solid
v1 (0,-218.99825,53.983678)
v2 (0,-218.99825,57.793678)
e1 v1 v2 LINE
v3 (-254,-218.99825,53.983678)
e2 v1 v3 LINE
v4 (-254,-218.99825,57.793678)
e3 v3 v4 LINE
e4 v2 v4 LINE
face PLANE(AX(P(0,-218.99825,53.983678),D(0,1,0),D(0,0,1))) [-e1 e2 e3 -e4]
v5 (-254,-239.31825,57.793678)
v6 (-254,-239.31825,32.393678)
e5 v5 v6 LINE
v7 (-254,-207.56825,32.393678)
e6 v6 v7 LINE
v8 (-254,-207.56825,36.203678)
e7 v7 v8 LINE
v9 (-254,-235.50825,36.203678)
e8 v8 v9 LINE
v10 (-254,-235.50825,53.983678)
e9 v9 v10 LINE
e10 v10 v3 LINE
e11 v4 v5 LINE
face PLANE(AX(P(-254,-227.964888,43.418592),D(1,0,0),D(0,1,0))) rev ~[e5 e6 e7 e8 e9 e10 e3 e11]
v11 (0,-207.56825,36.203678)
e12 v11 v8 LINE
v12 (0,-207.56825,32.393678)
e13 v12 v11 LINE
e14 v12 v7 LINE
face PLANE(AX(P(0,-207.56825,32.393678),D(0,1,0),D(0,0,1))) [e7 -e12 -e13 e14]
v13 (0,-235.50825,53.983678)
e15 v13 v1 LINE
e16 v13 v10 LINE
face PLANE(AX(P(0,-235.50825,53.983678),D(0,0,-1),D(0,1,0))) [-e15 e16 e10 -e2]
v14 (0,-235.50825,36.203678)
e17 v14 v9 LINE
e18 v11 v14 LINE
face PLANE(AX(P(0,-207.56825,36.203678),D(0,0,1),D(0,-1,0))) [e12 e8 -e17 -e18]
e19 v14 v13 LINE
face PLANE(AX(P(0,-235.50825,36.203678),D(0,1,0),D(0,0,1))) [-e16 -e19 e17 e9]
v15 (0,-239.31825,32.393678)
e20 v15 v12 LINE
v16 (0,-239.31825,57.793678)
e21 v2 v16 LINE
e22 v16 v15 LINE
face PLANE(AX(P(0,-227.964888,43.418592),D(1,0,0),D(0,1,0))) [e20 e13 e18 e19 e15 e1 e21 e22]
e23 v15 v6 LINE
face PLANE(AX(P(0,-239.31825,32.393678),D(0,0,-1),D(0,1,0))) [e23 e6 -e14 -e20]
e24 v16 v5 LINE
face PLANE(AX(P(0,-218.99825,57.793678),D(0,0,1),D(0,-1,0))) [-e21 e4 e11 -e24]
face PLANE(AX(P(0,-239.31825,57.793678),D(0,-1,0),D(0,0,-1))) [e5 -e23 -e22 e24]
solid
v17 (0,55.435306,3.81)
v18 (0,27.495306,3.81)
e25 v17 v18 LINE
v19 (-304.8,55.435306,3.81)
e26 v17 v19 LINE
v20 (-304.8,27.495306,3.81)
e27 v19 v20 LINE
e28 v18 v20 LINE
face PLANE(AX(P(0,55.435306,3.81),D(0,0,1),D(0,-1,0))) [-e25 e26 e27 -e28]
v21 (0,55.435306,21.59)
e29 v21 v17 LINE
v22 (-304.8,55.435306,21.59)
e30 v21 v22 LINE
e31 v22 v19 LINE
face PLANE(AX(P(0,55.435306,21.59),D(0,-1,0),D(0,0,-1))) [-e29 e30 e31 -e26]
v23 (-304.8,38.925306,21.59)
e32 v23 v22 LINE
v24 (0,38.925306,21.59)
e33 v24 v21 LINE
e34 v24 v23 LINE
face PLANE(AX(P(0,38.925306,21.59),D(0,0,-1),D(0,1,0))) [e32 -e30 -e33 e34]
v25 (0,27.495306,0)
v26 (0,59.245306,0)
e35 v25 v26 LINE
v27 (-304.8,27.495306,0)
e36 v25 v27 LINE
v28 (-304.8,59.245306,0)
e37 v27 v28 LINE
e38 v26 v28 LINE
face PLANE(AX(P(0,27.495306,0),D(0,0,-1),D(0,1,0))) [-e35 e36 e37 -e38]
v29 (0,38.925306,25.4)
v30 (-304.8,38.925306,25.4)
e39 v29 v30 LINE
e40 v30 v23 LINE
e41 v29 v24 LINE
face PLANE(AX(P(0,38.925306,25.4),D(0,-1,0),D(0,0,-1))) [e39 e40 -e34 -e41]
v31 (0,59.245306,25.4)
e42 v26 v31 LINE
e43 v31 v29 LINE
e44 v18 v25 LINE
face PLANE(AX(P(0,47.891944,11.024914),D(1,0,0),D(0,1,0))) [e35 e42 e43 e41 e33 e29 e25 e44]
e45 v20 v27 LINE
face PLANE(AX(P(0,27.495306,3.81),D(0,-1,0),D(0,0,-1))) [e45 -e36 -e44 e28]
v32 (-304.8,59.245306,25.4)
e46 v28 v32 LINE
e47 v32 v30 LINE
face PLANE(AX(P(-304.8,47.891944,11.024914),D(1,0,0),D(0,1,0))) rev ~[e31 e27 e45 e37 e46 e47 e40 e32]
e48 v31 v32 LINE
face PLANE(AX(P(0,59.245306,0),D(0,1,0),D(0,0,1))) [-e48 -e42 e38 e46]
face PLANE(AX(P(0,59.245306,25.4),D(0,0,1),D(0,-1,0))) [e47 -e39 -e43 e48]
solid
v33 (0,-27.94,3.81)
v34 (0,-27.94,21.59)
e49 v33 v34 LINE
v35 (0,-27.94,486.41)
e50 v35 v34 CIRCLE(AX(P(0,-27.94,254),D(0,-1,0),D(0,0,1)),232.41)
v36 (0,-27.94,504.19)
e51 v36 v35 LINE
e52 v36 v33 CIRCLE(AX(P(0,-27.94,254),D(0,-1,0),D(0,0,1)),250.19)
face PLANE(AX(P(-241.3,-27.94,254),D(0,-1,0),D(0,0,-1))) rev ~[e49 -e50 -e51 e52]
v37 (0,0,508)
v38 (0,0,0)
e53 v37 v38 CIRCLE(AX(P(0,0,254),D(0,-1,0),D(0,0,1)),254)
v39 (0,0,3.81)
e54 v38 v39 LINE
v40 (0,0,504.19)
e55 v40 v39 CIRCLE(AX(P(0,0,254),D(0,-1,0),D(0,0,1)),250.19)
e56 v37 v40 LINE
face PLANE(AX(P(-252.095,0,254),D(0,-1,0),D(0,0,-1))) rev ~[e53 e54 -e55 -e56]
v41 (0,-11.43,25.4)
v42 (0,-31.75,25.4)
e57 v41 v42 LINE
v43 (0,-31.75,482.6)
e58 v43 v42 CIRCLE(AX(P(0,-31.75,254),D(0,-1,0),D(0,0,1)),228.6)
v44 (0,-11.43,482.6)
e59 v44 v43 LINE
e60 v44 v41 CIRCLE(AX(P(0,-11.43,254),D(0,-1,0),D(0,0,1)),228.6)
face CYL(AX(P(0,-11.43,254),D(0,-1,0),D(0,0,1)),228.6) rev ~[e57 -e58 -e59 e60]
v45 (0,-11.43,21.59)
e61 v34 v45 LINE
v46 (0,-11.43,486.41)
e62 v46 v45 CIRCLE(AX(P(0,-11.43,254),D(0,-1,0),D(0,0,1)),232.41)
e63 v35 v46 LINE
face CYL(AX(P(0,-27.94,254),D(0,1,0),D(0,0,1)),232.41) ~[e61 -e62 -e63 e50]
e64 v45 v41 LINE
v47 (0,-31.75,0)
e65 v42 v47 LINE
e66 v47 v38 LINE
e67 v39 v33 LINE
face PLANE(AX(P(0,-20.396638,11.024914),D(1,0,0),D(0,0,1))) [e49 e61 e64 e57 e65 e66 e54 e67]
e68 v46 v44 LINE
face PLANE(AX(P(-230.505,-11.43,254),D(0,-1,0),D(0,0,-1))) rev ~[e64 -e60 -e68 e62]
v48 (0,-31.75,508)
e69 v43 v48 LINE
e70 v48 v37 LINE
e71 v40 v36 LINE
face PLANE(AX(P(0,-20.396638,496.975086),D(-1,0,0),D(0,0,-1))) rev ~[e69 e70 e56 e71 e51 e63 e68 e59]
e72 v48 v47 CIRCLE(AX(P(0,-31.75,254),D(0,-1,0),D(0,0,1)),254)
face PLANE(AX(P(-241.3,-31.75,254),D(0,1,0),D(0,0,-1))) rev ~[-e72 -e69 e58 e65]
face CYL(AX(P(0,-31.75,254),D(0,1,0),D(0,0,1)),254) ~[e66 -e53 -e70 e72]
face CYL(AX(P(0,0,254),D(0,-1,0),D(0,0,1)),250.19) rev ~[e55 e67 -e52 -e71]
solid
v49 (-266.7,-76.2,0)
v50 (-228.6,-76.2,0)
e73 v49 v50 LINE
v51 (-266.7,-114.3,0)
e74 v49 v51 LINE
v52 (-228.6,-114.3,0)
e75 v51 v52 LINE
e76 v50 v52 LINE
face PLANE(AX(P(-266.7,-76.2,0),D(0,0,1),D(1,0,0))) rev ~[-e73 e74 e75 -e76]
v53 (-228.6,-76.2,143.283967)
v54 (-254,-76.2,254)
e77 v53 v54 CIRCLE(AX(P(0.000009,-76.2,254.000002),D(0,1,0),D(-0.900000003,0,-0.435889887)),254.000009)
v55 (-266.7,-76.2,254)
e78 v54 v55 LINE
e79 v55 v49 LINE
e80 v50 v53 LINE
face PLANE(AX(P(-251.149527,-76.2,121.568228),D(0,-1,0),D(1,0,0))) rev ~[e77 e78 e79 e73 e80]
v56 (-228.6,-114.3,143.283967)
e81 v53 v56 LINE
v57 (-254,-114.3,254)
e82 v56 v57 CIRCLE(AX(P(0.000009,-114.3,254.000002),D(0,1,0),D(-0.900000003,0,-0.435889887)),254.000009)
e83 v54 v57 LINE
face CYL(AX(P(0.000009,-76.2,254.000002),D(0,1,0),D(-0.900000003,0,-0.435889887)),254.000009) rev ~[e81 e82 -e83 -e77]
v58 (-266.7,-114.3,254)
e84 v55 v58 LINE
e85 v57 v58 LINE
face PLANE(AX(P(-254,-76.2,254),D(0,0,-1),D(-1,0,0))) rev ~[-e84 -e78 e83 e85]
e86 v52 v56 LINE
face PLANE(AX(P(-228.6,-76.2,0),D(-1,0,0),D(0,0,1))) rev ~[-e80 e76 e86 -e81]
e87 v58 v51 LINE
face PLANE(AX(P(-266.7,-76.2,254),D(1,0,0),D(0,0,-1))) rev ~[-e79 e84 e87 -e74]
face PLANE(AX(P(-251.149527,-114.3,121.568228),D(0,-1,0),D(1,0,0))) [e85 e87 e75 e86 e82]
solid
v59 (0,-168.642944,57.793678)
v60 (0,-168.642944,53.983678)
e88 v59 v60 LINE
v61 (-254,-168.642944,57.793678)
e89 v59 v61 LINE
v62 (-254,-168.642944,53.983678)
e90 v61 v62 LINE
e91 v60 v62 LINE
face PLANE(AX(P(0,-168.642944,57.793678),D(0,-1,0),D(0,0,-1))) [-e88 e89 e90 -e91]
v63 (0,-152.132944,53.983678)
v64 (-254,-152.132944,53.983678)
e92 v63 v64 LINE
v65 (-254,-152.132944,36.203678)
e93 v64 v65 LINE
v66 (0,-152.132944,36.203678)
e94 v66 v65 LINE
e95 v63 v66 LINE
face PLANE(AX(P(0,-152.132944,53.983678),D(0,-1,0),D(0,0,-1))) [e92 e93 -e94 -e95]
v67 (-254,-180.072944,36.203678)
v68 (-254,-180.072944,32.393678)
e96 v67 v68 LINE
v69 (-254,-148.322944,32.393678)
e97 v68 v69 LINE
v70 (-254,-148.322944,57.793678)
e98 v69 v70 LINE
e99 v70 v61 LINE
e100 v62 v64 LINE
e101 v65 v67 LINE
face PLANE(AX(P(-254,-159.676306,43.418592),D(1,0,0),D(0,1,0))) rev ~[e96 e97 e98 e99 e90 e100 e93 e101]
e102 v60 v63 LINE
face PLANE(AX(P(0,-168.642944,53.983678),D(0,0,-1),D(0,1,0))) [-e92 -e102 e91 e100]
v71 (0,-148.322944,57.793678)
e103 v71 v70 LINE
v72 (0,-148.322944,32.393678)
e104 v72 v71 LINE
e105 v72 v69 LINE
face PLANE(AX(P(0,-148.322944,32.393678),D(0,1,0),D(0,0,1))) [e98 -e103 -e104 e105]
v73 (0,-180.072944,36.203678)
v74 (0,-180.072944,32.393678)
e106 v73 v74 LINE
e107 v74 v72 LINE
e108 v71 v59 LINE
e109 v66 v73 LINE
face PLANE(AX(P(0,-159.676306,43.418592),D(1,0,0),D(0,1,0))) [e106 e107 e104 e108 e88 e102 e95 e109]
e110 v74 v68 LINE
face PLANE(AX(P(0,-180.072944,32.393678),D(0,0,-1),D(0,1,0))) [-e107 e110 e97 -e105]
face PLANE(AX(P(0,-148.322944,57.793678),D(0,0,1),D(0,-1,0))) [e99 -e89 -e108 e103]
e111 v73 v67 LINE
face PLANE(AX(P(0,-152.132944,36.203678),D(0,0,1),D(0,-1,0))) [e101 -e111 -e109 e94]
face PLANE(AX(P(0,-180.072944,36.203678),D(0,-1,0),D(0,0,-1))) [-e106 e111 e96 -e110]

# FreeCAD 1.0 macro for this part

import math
import FreeCAD as App
import Part
import Sketcher

V = App.Vector
Q = App.Units.Quantity


def add_polygon(sketch, points):
    """Adds a closed chain of lines whose ends are joined by coincident constraints."""
    first, n = sketch.GeometryCount, len(points)
    for a, b in zip(points, points[1:] + points[:1]):
        sketch.addGeometry(Part.LineSegment(App.Vector(*a, 0), App.Vector(*b, 0)), False)
    for i in range(n):
        sketch.addConstraint(Sketcher.Constraint("Coincident", first + i, 2, first + (i + 1) % n, 1))

doc = App.newDocument("Part")
body = doc.addObject("PartDesign::Body", "Body")

# Sketch on YZ plane
sketch1 = doc.addObject("Sketcher::SketchObject", "Sketch")
body.addObject(sketch1)
sketch1.AttachmentSupport = (doc.YZ_Plane, [""])
sketch1.MapMode = "FlatFace"
add_polygon(sketch1, [(-27.94, 3.81), (-27.94, 21.59), (-11.43, 21.59), (-11.43, 25.4), (-31.75, 25.4), (-31.75, 0), (0, 0), (0, 3.81)])  # lines 0-7
sketch1.addConstraint(Sketcher.Constraint("Vertical", 0))
sketch1.addConstraint(Sketcher.Constraint("Horizontal", 1))
sketch1.addConstraint(Sketcher.Constraint("Vertical", 2))
sketch1.addConstraint(Sketcher.Constraint("Horizontal", 3))
sketch1.addConstraint(Sketcher.Constraint("Vertical", 4))
sketch1.addConstraint(Sketcher.Constraint("Horizontal", 5))
sketch1.addConstraint(Sketcher.Constraint("Vertical", 6))
sketch1.addConstraint(Sketcher.Constraint("Horizontal", 7))
sketch1.addConstraint(Sketcher.Constraint("Coincident", 5, 2, -1, 1))
sketch1.addConstraint(Sketcher.Constraint("Equal", 2, 6))
sketch1.addConstraint(Sketcher.Constraint("DistanceY", 4, 2, 4, 1, Q("1 in")))
sketch1.addConstraint(Sketcher.Constraint("DistanceX", 3, 2, 3, 1, Q("0.8 in")))
sketch1.addConstraint(Sketcher.Constraint("DistanceX", 7, 2, 7, 1, Q("1.1 in")))
sketch1.addConstraint(Sketcher.Constraint("DistanceY", 0, 1, 0, 2, Q("0.7 in")))
sketch1.addConstraint(Sketcher.Constraint("DistanceX", 1, 1, 1, 2, Q("0.65 in")))

# Sketch on XZ plane
sketch2 = doc.addObject("Sketcher::SketchObject", "Sketch001")
body.addObject(sketch2)
sketch2.AttachmentSupport = (doc.XZ_Plane, [""])
sketch2.MapMode = "FlatFace"
sketch2.addGeometry(Part.ArcOfCircle(Part.Circle(V(0, 254, 0), V(0, 0, 1), 254), math.radians(90), math.radians(270)), False)
sketch2.addConstraint(Sketcher.Constraint("Coincident", 0, 2, -1, 1))
sketch2.addConstraint(Sketcher.Constraint("PointOnObject", 0, 3, -2))
sketch2.addConstraint(Sketcher.Constraint("PointOnObject", 0, 1, -2))
sketch2.addConstraint(Sketcher.Constraint("Radius", 0, Q("10 in")))
doc.recompute()

additivepipe = doc.addObject("PartDesign::AdditivePipe", "AdditivePipe")
body.addObject(additivepipe)
additivepipe.Profile = sketch1
additivepipe.Spine = (sketch2, ["Edge1"])
body2 = doc.addObject("PartDesign::Body", "Body001")
body2.AllowCompound = True

# Sketch on YZ plane
sketch3 = doc.addObject("Sketcher::SketchObject", "Sketch002")
body2.addObject(sketch3)
sketch3.AttachmentSupport = (doc.getObject("YZ_Plane001"), [""])
sketch3.MapMode = "FlatFace"
add_polygon(sketch3, [(-235.50825, 36.203678), (-235.50825, 53.983678), (-218.99825, 53.983678), (-218.99825, 57.793678), (-239.31825, 57.793678), (-239.31825, 32.393678), (-207.56825, 32.393678), (-207.56825, 36.203678)])  # lines 0-7
add_polygon(sketch3, [(-168.642944, 53.983678), (-152.132944, 53.983678), (-152.132944, 36.203678), (-180.072944, 36.203678), (-180.072944, 32.393678), (-148.322944, 32.393678), (-148.322944, 57.793678), (-168.642944, 57.793678)])  # lines 8-15
sketch3.addConstraint(Sketcher.Constraint("Vertical", 0))
sketch3.addConstraint(Sketcher.Constraint("Horizontal", 1))
sketch3.addConstraint(Sketcher.Constraint("Vertical", 2))
sketch3.addConstraint(Sketcher.Constraint("Horizontal", 3))
sketch3.addConstraint(Sketcher.Constraint("Vertical", 4))
sketch3.addConstraint(Sketcher.Constraint("Horizontal", 5))
sketch3.addConstraint(Sketcher.Constraint("Vertical", 6))
sketch3.addConstraint(Sketcher.Constraint("Horizontal", 7))
sketch3.addConstraint(Sketcher.Constraint("Horizontal", 8))
sketch3.addConstraint(Sketcher.Constraint("Vertical", 9))
sketch3.addConstraint(Sketcher.Constraint("Horizontal", 10))
sketch3.addConstraint(Sketcher.Constraint("Vertical", 11))
sketch3.addConstraint(Sketcher.Constraint("Horizontal", 12))
sketch3.addConstraint(Sketcher.Constraint("Vertical", 13))
sketch3.addConstraint(Sketcher.Constraint("Horizontal", 14))
sketch3.addConstraint(Sketcher.Constraint("Vertical", 15))
sketch3.addConstraint(Sketcher.Constraint("Horizontal", 1, 2, 8, 2))
sketch3.addConstraint(Sketcher.Constraint("Horizontal", 7, 2, 9, 2))
sketch3.addConstraint(Sketcher.Constraint("Horizontal", 5, 2, 11, 2))
sketch3.addConstraint(Sketcher.Constraint("Horizontal", 3, 2, 13, 2))
sketch3.addConstraint(Sketcher.Constraint("Equal", 1, 8))
sketch3.addConstraint(Sketcher.Constraint("Equal", 7, 10))
sketch3.addConstraint(Sketcher.Constraint("Equal", 5, 12))
sketch3.addConstraint(Sketcher.Constraint("Equal", 2, 6))
sketch3.addConstraint(Sketcher.Constraint("DistanceY", 4, 2, 4, 1, Q("1 in")))
sketch3.addConstraint(Sketcher.Constraint("DistanceX", 3, 2, 3, 1, Q("0.8 in")))
sketch3.addConstraint(Sketcher.Constraint("DistanceX", 7, 2, 7, 1, Q("1.1 in")))
sketch3.addConstraint(Sketcher.Constraint("DistanceY", 0, 1, 0, 2, Q("0.7 in")))
sketch3.addConstraint(Sketcher.Constraint("DistanceX", 1, 1, 1, 2, Q("0.65 in")))
sketch3.addConstraint(Sketcher.Constraint("DistanceX", 0, 2, -1, 1, 235.50825))
sketch3.addConstraint(Sketcher.Constraint("DistanceY", -1, 1, 0, 2, 53.983678))
sketch3.addConstraint(Sketcher.Constraint("DistanceX", 8, 2, -1, 1, 152.132944))
pad1 = doc.addObject("PartDesign::Pad", "Pad")
body2.addObject(pad1)
pad1.Profile = sketch3
pad1.Length = Q("10 in")
pad1.Reversed = True
body3 = doc.addObject("PartDesign::Body", "Body002")

# Sketch on XZ plane
sketch4 = doc.addObject("Sketcher::SketchObject", "Sketch003")
body3.addObject(sketch4)
sketch4.AttachmentSupport = (doc.getObject("XZ_Plane002"), [""])
sketch4.MapMode = "FlatFace"
sketch4.AttachmentOffset = App.Placement(V(0, 0, 3 * 25.4), App.Rotation())
sketch4.addGeometry(Part.LineSegment(V(-266.7, 254, 0), V(-266.7, 0, 0)), False)
sketch4.addGeometry(Part.LineSegment(V(-266.7, 0, 0), V(-228.6, 0, 0)), False)
sketch4.addGeometry(Part.LineSegment(V(-228.6, 0, 0), V(-228.6, 143.283967, 0)), False)
sketch4.addGeometry(Part.ArcOfCircle(Part.Circle(V(0.000009, 254.000002, 0), V(0, 0, 1), 254.000009), math.radians(-180), math.radians(-154.158068)), False)
sketch4.addGeometry(Part.LineSegment(V(-254, 254, 0), V(-266.7, 254, 0)), False)
sketch4.addConstraint(Sketcher.Constraint("Coincident", 0, 2, 1, 1))
sketch4.addConstraint(Sketcher.Constraint("Coincident", 1, 2, 2, 1))
sketch4.addConstraint(Sketcher.Constraint("Coincident", 2, 2, 3, 2))
sketch4.addConstraint(Sketcher.Constraint("Coincident", 3, 1, 4, 1))
sketch4.addConstraint(Sketcher.Constraint("Coincident", 4, 2, 0, 1))
sketch4.addConstraint(Sketcher.Constraint("Vertical", 0))
sketch4.addConstraint(Sketcher.Constraint("Horizontal", 1))
sketch4.addConstraint(Sketcher.Constraint("Vertical", 2))
sketch4.addConstraint(Sketcher.Constraint("Horizontal", 4))
sketch4.addConstraint(Sketcher.Constraint("PointOnObject", 0, 2, -1))
sketch4.addConstraint(Sketcher.Constraint("DistanceY", 0, 2, 0, 1, Q("10 in")))
sketch4.addConstraint(Sketcher.Constraint("DistanceX", 1, 1, 1, 2, Q("1.5 in")))
sketch4.addConstraint(Sketcher.Constraint("DistanceX", 4, 2, 4, 1, Q("0.5 in")))
sketch4.addConstraint(Sketcher.Constraint("DistanceY", -1, 1, 3, 3, Q("10.0000001 in")))
sketch4.addConstraint(Sketcher.Constraint("DistanceX", 1, 2, -1, 1, Q("9 in")))
sketch4.addConstraint(Sketcher.Constraint("Radius", 3, 254.000009))
pad2 = doc.addObject("PartDesign::Pad", "Pad001")
body3.addObject(pad2)
pad2.Profile = sketch4
pad2.Length = Q("1.5 in")
body4 = doc.addObject("PartDesign::Body", "Body003")

# Sketch on YZ plane
sketch5 = doc.addObject("Sketcher::SketchObject", "Sketch004")
body4.addObject(sketch5)
sketch5.AttachmentSupport = (doc.getObject("YZ_Plane003"), [""])
sketch5.MapMode = "FlatFace"
add_polygon(sketch5, [(38.925306, 21.59), (55.435306, 21.59), (55.435306, 3.81), (27.495306, 3.81), (27.495306, 0), (59.245306, 0), (59.245306, 25.4), (38.925306, 25.4)])  # lines 0-7
sketch5.addConstraint(Sketcher.Constraint("Horizontal", 0))
sketch5.addConstraint(Sketcher.Constraint("Vertical", 1))
sketch5.addConstraint(Sketcher.Constraint("Horizontal", 2))
sketch5.addConstraint(Sketcher.Constraint("Vertical", 3))
sketch5.addConstraint(Sketcher.Constraint("Horizontal", 4))
sketch5.addConstraint(Sketcher.Constraint("Vertical", 5))
sketch5.addConstraint(Sketcher.Constraint("Horizontal", 6))
sketch5.addConstraint(Sketcher.Constraint("Vertical", 7))
sketch5.addConstraint(Sketcher.Constraint("PointOnObject", 3, 2, -1))
sketch5.addConstraint(Sketcher.Constraint("Equal", 3, 7))
sketch5.addConstraint(Sketcher.Constraint("DistanceY", 5, 1, 5, 2, Q("1 in")))
sketch5.addConstraint(Sketcher.Constraint("DistanceX", 2, 2, 2, 1, Q("1.1 in")))
sketch5.addConstraint(Sketcher.Constraint("DistanceX", 6, 2, 6, 1, Q("0.8 in")))
sketch5.addConstraint(Sketcher.Constraint("DistanceY", 1, 2, 1, 1, Q("0.7 in")))
sketch5.addConstraint(Sketcher.Constraint("DistanceX", 0, 1, 0, 2, Q("0.65 in")))
sketch5.addConstraint(Sketcher.Constraint("DistanceX", -1, 1, 0, 2, 55.435306))
pad3 = doc.addObject("PartDesign::Pad", "Pad002")
body4.addObject(pad3)
pad3.Profile = sketch5
pad3.Length = Q("12 in")
pad3.Reversed = True

doc.recompute()
